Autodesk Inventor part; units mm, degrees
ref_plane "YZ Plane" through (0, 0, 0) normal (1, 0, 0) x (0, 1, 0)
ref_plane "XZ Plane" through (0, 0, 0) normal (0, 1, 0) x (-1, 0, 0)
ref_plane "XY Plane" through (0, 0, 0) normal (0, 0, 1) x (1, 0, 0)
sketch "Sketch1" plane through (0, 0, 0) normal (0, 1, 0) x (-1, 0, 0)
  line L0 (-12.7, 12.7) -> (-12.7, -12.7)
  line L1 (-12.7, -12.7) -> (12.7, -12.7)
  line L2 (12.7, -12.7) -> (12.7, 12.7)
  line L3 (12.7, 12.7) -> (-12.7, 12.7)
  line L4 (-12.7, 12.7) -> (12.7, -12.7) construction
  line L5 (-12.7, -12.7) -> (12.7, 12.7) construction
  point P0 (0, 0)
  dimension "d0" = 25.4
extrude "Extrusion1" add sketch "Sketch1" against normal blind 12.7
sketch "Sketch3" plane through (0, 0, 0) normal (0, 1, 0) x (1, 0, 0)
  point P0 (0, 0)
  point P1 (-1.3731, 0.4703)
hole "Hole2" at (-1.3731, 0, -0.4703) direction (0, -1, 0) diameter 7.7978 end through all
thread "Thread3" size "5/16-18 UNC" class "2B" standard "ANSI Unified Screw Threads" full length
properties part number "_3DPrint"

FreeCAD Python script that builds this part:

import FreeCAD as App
import Part
import Sketcher
from FreeCAD import Vector
Q = App.Units.Quantity


def add_polygon(sketch, points):
    """Adds a closed chain of lines whose ends are joined by coincident constraints."""
    first, n = sketch.GeometryCount, len(points)
    for a, b in zip(points, points[1:] + points[:1]):
        sketch.addGeometry(Part.LineSegment(App.Vector(*a, 0), App.Vector(*b, 0)), False)
    for i in range(n):
        sketch.addConstraint(Sketcher.Constraint("Coincident", first + i, 2, first + (i + 1) % n, 1))

doc = App.newDocument("Part")
body = doc.addObject("PartDesign::Body", "Body")

# Sketch on XZ plane
sketch1 = body.newObject("Sketcher::SketchObject", "Sketch")
sketch1.AttachmentSupport = (doc.getObject("XZ_Plane"), [""])
sketch1.MapMode = "FlatFace"
add_polygon(sketch1, [(-12.7, 12.7), (12.7, 12.7), (12.7, -12.7), (-12.7, -12.7)])  # lines 0-3
sketch1.addConstraint([
    Sketcher.Constraint("Horizontal", 0),
    Sketcher.Constraint("Vertical", 1),
    Sketcher.Constraint("Horizontal", 2),
    Sketcher.Constraint("Vertical", 3),
    Sketcher.Constraint("Symmetric", 0, 2, 2, 2, -1, 1),
    Sketcher.Constraint("Equal", 2, 1),
    Sketcher.Constraint("DistanceX", 0, 1, 0, 2, Q("1 in")),
])
pad1 = body.newObject("PartDesign::Pad", "Pad")
pad1.Profile = sketch1
pad1.Length = Q("0.5 in")

# Sketch on XZ plane
sketch2 = body.newObject("Sketcher::SketchObject", "Sketch001")
sketch2.AttachmentSupport = (doc.getObject("XZ_Plane"), [""])
sketch2.MapMode = "FlatFace"
sketch2.addGeometry(Part.Circle(Vector(-1.3731, -0.4703, 0), Vector(0, 0, 1), 3.8989), False)
sketch2.addConstraint([
    Sketcher.Constraint("Diameter", 0, Q("0.307 in")),
    Sketcher.Constraint("DistanceX", 0, 3, -1, 1, 1.373),
    Sketcher.Constraint("DistanceY", 0, 3, -1, 1, 0.4703),
])
doc.recompute()
hole = body.newObject("PartDesign::Hole", "Hole")
hole.Profile = sketch2
hole.ThreadType = "None"
hole.Diameter = Q("0.307 in")
hole.DepthType = "ThroughAll"
hole.Reversed = True

doc.recompute()
